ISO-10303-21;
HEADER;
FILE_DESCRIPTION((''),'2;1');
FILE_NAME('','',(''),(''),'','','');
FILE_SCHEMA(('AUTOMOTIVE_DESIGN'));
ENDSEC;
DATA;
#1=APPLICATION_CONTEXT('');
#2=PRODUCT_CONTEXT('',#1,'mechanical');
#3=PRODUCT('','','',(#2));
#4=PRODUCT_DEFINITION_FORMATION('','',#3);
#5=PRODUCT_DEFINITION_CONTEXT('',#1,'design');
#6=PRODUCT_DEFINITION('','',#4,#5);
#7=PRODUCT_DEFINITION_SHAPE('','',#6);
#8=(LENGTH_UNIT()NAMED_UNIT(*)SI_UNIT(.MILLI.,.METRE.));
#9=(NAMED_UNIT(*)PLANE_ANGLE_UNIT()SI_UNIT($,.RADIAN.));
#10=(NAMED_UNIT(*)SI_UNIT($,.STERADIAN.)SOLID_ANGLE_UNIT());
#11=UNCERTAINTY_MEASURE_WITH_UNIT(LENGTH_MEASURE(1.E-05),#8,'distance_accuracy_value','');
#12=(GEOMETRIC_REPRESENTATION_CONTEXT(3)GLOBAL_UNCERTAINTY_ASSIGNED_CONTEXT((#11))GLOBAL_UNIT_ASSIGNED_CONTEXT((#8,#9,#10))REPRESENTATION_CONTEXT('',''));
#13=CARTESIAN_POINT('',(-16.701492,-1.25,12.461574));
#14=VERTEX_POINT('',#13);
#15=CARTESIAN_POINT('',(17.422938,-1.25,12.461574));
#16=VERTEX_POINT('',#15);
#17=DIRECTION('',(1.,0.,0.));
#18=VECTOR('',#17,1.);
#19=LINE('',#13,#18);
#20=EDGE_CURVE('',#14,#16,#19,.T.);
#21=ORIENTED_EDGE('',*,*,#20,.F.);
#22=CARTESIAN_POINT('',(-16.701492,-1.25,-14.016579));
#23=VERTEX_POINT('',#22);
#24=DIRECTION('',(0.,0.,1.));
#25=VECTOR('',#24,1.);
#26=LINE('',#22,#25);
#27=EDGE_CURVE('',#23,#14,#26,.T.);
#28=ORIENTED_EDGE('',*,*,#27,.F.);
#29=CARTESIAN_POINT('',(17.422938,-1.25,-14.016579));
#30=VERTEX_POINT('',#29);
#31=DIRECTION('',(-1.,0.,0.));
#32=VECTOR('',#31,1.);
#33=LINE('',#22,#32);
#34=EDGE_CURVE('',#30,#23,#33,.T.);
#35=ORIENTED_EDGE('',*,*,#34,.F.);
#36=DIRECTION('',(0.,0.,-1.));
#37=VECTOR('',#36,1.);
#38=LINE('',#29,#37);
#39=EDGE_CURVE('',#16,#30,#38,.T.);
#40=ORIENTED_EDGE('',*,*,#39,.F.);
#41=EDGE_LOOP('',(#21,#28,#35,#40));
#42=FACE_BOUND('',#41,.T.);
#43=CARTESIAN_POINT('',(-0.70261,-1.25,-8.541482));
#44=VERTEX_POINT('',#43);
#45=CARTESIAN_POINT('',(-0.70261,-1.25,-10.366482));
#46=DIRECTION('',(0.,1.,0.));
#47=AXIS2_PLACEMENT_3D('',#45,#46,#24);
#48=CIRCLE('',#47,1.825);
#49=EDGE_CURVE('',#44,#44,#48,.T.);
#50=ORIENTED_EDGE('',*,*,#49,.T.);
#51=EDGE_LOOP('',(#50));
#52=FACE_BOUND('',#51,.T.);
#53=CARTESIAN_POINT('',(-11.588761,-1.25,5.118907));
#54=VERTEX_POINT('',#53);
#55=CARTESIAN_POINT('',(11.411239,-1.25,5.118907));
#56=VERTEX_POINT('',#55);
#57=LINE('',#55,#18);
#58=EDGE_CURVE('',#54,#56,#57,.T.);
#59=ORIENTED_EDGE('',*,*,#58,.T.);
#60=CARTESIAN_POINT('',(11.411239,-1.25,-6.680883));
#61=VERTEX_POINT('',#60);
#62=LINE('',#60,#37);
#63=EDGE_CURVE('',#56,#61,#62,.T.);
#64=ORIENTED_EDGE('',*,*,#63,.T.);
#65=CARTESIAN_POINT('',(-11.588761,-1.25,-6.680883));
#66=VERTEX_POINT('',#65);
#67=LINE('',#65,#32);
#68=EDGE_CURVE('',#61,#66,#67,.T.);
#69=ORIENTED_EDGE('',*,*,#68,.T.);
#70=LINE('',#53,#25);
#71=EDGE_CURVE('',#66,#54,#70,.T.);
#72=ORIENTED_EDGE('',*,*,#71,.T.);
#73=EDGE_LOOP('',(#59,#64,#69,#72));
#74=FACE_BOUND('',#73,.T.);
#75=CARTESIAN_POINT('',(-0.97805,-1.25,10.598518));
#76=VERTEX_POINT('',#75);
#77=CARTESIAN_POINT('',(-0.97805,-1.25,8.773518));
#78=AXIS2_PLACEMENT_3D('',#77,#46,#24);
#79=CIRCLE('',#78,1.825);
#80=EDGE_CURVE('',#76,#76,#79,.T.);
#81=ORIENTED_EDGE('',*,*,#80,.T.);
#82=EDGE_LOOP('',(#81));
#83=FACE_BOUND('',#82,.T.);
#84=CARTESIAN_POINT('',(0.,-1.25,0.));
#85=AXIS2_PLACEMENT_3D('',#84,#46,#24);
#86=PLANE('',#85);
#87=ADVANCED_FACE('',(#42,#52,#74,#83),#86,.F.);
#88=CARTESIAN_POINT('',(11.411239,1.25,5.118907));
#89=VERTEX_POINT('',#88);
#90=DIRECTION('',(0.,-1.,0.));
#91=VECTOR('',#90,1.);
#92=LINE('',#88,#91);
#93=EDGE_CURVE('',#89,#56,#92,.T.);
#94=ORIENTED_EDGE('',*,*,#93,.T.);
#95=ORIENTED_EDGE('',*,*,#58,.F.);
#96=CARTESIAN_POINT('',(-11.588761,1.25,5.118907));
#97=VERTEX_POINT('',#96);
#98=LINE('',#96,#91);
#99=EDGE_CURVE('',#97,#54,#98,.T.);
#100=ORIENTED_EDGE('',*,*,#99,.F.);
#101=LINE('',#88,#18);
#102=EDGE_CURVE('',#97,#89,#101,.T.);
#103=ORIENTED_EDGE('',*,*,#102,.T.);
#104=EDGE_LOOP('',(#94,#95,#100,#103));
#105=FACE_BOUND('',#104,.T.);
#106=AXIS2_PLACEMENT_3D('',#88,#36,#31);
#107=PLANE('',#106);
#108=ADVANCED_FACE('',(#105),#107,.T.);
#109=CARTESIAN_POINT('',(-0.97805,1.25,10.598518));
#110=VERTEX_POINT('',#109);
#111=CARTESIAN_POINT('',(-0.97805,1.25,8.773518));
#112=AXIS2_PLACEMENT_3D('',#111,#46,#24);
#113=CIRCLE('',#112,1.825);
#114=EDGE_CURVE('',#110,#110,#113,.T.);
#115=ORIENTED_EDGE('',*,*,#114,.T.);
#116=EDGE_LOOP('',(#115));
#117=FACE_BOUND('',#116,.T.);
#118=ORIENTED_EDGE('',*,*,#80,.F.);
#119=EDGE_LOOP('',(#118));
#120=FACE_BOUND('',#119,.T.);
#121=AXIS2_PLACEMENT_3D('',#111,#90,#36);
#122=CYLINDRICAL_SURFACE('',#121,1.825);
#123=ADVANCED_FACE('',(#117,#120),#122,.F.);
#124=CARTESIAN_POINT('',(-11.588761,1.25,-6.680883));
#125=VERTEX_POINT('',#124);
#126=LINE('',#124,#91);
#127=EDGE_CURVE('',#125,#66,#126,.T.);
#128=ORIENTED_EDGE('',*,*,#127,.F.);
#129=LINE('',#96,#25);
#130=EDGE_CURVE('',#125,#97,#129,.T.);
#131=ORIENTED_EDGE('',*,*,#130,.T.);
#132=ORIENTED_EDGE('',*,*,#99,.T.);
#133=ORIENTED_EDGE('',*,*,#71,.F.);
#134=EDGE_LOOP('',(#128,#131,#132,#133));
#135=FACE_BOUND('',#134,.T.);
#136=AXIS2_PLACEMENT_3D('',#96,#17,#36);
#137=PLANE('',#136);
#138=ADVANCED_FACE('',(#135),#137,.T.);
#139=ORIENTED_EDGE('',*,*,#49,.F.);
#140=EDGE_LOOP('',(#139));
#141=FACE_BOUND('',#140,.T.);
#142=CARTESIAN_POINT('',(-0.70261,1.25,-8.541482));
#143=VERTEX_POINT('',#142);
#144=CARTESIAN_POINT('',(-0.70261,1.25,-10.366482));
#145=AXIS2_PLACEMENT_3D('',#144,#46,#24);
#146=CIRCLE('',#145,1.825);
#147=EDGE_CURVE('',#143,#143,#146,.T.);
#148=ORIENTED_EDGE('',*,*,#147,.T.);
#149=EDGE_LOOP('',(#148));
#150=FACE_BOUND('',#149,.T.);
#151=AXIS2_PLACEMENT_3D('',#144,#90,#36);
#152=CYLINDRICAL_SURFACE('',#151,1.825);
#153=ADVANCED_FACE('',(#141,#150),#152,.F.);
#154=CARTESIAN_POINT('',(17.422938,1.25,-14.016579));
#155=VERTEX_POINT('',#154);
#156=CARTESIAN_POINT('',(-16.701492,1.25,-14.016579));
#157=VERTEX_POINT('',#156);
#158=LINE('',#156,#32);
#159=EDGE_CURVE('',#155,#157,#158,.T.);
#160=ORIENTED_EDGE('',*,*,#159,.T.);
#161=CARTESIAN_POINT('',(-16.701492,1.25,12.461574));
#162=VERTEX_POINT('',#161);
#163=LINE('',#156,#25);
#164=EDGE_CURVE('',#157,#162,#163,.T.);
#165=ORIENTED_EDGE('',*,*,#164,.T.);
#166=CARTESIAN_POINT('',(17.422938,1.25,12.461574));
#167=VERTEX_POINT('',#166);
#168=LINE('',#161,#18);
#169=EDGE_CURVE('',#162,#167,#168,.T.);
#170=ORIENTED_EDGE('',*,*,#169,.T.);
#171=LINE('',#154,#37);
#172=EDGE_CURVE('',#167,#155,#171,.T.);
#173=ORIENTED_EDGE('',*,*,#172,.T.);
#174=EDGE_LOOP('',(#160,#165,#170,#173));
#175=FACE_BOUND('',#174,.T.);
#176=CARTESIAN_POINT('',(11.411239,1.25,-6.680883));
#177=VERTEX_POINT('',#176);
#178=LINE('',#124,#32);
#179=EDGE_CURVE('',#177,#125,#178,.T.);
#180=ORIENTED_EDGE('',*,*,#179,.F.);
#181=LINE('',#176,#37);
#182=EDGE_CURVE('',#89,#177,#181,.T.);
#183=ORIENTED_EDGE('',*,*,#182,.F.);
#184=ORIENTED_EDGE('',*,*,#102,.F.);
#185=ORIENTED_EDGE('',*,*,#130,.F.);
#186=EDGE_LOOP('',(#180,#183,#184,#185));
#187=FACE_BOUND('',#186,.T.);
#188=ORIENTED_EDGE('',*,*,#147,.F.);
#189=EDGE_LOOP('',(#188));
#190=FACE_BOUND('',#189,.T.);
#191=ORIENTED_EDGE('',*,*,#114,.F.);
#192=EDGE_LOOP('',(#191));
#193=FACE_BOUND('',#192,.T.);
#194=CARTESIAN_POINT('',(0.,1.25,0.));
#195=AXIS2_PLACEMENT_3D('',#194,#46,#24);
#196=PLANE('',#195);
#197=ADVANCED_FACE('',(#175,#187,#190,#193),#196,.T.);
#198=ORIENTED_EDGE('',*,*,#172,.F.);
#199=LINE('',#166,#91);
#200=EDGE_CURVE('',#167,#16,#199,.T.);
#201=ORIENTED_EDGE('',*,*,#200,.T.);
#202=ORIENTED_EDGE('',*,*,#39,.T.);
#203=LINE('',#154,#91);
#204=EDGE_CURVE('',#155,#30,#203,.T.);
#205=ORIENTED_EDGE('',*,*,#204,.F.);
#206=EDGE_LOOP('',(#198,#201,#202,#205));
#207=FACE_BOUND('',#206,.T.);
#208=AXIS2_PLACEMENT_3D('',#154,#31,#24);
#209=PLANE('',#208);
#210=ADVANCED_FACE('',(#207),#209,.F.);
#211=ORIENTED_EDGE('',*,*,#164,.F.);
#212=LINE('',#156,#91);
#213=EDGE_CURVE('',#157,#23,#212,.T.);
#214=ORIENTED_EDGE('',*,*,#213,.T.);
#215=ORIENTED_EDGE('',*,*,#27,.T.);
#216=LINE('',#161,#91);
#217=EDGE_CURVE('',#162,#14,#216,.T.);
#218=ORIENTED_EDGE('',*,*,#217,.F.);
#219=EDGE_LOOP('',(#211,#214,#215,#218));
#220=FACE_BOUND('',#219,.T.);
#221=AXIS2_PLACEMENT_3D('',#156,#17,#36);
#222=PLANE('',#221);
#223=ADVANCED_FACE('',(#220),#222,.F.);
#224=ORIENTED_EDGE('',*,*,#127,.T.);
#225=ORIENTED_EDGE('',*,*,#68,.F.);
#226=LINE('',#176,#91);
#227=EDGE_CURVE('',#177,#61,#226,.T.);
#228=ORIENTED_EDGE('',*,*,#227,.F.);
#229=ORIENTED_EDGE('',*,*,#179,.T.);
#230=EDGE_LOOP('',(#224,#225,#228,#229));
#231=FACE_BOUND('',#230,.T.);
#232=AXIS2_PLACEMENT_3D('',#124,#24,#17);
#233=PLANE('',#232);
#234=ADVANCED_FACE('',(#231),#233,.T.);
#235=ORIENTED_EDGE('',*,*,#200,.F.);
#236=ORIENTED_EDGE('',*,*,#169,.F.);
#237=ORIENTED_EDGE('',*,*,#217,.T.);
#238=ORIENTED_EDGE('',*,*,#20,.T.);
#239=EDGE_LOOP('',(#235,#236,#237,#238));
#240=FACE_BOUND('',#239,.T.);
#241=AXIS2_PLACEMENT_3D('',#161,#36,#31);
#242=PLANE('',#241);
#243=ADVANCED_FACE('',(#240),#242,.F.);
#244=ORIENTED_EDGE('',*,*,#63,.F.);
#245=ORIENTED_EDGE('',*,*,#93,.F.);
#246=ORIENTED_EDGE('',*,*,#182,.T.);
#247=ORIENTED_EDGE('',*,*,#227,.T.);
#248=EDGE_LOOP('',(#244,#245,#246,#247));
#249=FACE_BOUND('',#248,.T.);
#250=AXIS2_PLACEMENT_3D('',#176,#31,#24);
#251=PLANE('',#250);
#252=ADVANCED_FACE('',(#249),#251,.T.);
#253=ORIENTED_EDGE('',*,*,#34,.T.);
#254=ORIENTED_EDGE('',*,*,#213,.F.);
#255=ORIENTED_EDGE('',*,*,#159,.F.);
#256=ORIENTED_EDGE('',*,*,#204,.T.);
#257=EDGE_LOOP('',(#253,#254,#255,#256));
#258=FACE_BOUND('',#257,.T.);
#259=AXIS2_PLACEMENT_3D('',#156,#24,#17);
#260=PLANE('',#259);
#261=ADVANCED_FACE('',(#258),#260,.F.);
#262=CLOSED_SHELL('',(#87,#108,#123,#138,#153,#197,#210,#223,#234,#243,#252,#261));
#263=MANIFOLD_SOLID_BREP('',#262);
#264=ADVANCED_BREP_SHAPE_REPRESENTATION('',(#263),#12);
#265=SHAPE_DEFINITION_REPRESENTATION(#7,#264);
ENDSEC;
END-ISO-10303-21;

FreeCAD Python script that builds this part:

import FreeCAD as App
import Part
import Sketcher

doc = App.newDocument("Part")
params = doc.addObject("Spreadsheet::Sheet", "Params")
for row, (alias, value) in enumerate([
    ("sketch1_diameter", "3.65 mm"),
    ("sketch1_width", "23 mm"),
    ("pad1_length", "2.5 mm"),
], start=1):
    params.set(f"A{row}", alias)
    params.set(f"B{row}", "=" + value)
    params.setAlias(f"B{row}", alias)

body = doc.addObject("PartDesign::Body", "Body")

sketch1 = body.newObject("Sketcher::SketchObject", "Sketch")
sketch1.AttachmentSupport = (doc.getObject("XZ_Plane"), [""])
sketch1.MapMode = "FlatFace"
sketch1.addGeometry(Part.LineSegment(App.Vector(-16.701492, -14.016579, 0), App.Vector(-16.701492, 12.461574, 0)), False)
sketch1.addGeometry(Part.LineSegment(App.Vector(-16.701492, 12.461574, 0), App.Vector(17.422938, 12.461574, 0)), False)
sketch1.addGeometry(Part.LineSegment(App.Vector(17.422938, 12.461574, 0), App.Vector(17.422938, -14.016579, 0)), False)
sketch1.addGeometry(Part.LineSegment(App.Vector(17.422938, -14.016579, 0), App.Vector(-16.701492, -14.016579, 0)), False)
sketch1.addGeometry(Part.Circle(App.Vector(-0.97805, 8.773518, 0), App.Vector(0, 0, 1), 1.825), False)
sketch1.addGeometry(Part.LineSegment(App.Vector(11.411239, 5.118907, 0), App.Vector(-11.588761, 5.118907, 0)), False)
sketch1.addGeometry(Part.LineSegment(App.Vector(-11.588761, 5.118907, 0), App.Vector(-11.588761, -6.680883, 0)), False)
sketch1.addGeometry(Part.LineSegment(App.Vector(-11.588761, -6.680883, 0), App.Vector(11.411239, -6.680883, 0)), False)
sketch1.addGeometry(Part.LineSegment(App.Vector(11.411239, -6.680883, 0), App.Vector(11.411239, 5.118907, 0)), False)
sketch1.addGeometry(Part.Circle(App.Vector(-0.70261, -10.366482, 0), App.Vector(0, 0, 1), 1.825), False)
sketch1.addConstraint(Sketcher.Constraint("Coincident", 0, 2, 1, 1))
sketch1.addConstraint(Sketcher.Constraint("Coincident", 1, 2, 2, 1))
sketch1.addConstraint(Sketcher.Constraint("Coincident", 2, 2, 3, 1))
sketch1.addConstraint(Sketcher.Constraint("Coincident", 3, 2, 0, 1))
sketch1.addConstraint(Sketcher.Constraint("Coincident", 5, 2, 6, 1))
sketch1.addConstraint(Sketcher.Constraint("Coincident", 6, 2, 7, 1))
sketch1.addConstraint(Sketcher.Constraint("Coincident", 7, 2, 8, 1))
sketch1.addConstraint(Sketcher.Constraint("Coincident", 8, 2, 5, 1))
sketch1.addConstraint(Sketcher.Constraint("Vertical", 0))
sketch1.addConstraint(Sketcher.Constraint("Horizontal", 1))
sketch1.addConstraint(Sketcher.Constraint("Vertical", 2))
sketch1.addConstraint(Sketcher.Constraint("Horizontal", 3))
sketch1.addConstraint(Sketcher.Constraint("Horizontal", 5))
sketch1.addConstraint(Sketcher.Constraint("Vertical", 6))
sketch1.addConstraint(Sketcher.Constraint("Horizontal", 7))
sketch1.addConstraint(Sketcher.Constraint("Vertical", 8))
sketch1.addConstraint(Sketcher.Constraint("Equal", 4, 9))
sketch1.addConstraint(Sketcher.Constraint("Diameter", 4, 3.65))
sketch1.addConstraint(Sketcher.Constraint("DistanceX", 5, 2, 5, 1, 23.0))
sketch1.addConstraint(Sketcher.Constraint("DistanceY", 9, 3, 4, 3, 19.14))
sketch1.addConstraint(Sketcher.Constraint("DistanceX", 1, 1, 1, 2, 34.12443))
sketch1.addConstraint(Sketcher.Constraint("DistanceY", 6, 2, 6, 1, 11.79979))
sketch1.addConstraint(Sketcher.Constraint("DistanceX", 5, 2, 1, 2, 29.011699))
sketch1.addConstraint(Sketcher.Constraint("DistanceY", 9, 3, 6, 2, 3.685599))
sketch1.addConstraint(Sketcher.Constraint("DistanceY", 0, 1, 0, 2, 26.478153))
sketch1.addConstraint(Sketcher.Constraint("DistanceX", 4, 3, -1, 1, 0.97805))
sketch1.addConstraint(Sketcher.Constraint("DistanceY", -1, 1, 4, 3, 8.773518))
sketch1.addConstraint(Sketcher.Constraint("DistanceX", 9, 3, -1, 1, 0.70261))
sketch1.addConstraint(Sketcher.Constraint("DistanceX", 0, 2, -1, 1, 16.701492))
sketch1.addConstraint(Sketcher.Constraint("DistanceY", 2, 2, -1, 1, 14.016579))
sketch1.setExpression("Constraints[17]", "Params.sketch1_diameter")
sketch1.setExpression("Constraints[18]", "Params.sketch1_width")
pad1 = body.newObject("PartDesign::Pad", "Pad")
pad1.Profile = sketch1
pad1.setExpression("Length", "Params.pad1_length")
pad1.Midplane = True

doc.recompute()
